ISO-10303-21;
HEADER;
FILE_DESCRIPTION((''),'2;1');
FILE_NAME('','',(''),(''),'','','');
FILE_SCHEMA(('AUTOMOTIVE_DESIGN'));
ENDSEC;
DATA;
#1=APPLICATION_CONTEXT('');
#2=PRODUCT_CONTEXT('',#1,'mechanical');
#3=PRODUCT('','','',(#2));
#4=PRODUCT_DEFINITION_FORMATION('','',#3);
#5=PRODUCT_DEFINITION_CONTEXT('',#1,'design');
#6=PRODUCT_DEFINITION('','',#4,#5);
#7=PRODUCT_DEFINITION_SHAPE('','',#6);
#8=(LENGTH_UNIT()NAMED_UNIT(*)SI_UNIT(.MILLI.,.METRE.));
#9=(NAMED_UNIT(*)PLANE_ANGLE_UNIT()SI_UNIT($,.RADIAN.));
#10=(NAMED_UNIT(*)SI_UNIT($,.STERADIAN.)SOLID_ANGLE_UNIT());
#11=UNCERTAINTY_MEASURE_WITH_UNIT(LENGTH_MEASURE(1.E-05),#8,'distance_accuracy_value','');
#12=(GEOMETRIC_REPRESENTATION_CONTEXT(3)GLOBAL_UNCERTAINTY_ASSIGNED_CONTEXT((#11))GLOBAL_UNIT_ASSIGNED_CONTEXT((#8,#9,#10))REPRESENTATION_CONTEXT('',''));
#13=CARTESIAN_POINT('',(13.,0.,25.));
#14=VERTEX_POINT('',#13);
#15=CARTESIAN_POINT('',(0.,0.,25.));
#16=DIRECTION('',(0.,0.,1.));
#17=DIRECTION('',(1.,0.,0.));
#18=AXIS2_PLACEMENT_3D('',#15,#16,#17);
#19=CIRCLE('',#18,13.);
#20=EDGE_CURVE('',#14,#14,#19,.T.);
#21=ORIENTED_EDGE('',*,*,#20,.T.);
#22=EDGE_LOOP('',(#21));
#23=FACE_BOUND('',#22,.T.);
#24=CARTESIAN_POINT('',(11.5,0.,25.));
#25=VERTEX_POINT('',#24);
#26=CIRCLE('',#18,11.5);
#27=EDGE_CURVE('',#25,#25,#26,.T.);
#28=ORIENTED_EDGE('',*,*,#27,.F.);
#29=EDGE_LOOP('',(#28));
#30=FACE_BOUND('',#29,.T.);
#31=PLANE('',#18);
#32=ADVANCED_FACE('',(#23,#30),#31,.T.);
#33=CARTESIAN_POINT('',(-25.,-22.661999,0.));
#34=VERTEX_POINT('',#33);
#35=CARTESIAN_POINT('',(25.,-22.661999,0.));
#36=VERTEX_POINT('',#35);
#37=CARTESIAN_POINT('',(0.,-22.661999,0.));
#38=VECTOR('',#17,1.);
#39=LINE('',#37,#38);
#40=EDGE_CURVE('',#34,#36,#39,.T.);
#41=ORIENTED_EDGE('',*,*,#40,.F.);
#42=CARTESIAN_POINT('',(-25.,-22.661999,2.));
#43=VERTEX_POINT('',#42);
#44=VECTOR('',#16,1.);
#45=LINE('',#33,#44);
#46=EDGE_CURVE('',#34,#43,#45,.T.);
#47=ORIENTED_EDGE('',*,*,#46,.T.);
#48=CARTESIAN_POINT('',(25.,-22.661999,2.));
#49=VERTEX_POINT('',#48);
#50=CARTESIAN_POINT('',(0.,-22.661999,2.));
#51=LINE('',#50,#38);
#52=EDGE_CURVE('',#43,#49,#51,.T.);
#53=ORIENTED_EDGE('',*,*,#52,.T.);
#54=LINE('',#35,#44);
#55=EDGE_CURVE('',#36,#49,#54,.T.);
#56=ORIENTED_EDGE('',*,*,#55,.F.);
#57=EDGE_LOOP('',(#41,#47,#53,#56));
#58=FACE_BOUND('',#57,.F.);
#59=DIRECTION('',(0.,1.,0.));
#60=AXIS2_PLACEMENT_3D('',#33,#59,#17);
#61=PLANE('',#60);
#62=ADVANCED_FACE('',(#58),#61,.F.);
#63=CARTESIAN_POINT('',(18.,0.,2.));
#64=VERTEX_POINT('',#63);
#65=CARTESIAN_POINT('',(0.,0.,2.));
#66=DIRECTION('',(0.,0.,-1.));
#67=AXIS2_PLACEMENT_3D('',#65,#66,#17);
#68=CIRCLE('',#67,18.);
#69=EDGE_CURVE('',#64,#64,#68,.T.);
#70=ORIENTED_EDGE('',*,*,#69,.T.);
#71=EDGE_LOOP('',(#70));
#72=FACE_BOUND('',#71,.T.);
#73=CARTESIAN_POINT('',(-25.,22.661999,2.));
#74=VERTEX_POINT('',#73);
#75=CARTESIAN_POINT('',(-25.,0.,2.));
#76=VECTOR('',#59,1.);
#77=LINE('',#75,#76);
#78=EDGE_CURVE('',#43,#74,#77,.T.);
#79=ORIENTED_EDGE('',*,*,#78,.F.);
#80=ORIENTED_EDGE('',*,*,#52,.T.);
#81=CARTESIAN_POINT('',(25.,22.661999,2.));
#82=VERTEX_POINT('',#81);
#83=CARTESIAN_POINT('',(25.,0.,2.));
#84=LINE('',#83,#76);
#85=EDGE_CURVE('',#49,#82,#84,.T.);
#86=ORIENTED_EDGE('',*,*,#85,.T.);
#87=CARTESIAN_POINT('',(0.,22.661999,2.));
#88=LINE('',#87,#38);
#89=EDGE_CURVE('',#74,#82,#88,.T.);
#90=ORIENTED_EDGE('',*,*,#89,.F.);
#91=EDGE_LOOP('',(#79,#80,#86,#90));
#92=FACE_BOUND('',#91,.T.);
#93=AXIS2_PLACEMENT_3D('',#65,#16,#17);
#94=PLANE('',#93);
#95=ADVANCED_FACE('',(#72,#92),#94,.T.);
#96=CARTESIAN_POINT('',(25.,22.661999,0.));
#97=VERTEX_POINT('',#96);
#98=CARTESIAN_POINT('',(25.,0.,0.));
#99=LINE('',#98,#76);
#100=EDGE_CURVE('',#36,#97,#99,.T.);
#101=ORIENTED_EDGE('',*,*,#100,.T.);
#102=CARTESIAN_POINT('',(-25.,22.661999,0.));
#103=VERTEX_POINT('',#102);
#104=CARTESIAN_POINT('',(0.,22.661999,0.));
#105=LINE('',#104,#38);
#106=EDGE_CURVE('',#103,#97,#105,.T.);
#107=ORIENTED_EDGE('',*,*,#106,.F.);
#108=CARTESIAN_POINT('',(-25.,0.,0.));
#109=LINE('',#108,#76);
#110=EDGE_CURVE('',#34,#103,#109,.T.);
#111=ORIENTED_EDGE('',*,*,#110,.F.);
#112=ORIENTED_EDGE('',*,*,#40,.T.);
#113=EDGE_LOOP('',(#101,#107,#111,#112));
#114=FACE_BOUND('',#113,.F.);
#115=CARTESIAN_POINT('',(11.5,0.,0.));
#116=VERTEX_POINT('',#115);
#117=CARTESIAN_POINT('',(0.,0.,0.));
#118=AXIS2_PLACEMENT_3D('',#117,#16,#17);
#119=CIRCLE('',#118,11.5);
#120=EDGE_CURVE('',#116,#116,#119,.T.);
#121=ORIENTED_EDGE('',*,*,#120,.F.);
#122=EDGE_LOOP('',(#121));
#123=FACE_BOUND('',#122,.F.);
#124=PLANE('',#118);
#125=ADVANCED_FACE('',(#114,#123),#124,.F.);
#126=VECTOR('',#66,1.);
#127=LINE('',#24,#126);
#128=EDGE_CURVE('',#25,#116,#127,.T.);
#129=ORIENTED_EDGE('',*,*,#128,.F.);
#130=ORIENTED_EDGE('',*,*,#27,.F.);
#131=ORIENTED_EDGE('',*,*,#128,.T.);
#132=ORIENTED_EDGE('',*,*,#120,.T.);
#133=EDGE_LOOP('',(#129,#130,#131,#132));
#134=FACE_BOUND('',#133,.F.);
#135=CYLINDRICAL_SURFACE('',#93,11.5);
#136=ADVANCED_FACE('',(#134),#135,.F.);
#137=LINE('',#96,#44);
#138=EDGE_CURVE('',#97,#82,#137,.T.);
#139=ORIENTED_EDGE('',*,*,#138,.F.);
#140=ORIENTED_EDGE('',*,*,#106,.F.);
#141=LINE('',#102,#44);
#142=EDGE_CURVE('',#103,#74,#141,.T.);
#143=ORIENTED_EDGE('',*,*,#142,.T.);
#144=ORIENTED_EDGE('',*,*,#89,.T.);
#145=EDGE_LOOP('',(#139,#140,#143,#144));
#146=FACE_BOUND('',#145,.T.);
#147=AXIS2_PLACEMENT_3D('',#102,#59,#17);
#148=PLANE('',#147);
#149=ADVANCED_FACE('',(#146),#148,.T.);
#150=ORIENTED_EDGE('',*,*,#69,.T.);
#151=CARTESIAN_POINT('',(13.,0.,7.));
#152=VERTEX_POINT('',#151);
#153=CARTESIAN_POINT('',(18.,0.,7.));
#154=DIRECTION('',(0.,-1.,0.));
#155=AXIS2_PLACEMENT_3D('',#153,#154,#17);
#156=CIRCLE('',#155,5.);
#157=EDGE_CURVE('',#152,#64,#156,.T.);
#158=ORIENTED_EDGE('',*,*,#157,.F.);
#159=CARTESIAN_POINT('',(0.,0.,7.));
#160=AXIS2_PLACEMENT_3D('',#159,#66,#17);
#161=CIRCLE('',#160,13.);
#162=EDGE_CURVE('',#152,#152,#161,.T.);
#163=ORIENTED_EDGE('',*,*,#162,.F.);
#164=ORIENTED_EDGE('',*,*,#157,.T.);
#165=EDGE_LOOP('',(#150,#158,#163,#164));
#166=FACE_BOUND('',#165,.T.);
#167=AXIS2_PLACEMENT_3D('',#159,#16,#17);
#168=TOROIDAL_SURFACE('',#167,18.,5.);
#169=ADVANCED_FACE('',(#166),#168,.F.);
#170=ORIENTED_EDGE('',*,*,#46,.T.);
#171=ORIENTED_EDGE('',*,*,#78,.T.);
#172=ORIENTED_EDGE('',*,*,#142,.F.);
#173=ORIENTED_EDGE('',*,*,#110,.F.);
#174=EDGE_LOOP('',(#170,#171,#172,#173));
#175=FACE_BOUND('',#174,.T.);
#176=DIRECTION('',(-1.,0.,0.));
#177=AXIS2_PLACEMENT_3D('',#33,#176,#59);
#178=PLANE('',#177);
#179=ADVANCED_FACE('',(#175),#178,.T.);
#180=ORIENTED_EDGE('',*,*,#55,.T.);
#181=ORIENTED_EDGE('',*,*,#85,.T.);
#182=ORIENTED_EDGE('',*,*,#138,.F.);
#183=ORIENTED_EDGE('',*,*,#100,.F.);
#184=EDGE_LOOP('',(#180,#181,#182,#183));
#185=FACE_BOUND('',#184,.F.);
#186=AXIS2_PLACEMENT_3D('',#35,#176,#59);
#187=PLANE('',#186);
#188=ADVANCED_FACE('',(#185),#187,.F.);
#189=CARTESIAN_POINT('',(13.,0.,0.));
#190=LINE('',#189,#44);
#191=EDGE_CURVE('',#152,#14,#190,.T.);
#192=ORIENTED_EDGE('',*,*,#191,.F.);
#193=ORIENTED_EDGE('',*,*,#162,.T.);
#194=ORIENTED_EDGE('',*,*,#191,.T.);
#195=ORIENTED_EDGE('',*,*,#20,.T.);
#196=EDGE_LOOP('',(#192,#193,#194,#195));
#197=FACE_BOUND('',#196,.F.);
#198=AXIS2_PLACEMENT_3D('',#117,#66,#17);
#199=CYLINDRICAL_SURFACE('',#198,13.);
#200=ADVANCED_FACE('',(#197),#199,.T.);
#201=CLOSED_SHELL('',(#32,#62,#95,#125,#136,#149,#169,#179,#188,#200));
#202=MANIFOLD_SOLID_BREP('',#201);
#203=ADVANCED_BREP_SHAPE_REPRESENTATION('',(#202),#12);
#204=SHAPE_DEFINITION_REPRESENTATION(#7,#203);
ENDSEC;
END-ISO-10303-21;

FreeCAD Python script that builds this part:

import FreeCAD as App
import Part
import Sketcher

V = App.Vector
Q = App.Units.Quantity


def edges_at(feature, points):
    """Names of the edges that pass closest to the given points."""
    edges = feature.Shape.Edges
    near = lambda p: min(range(len(edges)), key=lambda i: edges[i].distToShape(Part.Vertex(*p))[0])
    return sorted({f"Edge{near(p) + 1}" for p in points})

doc = App.newDocument("Part")
params = doc.addObject("Spreadsheet::Sheet", "Params")
for row, (alias, value) in enumerate([
    ("sketch1_width", "50 mm"),
    ("pad1_length", "2 mm"),
    ("sketch2_diameter", "26 mm"),
    ("sketch2_diameter2", "23 mm"),
    ("pad2_length", "25 mm"),
    ("sketch3_diameter", "23 mm"),
    ("pocket1_length", "25 mm"),
    ("fillet_radius", "5 mm"),
], start=1):
    params.set(f"A{row}", alias)
    params.set(f"B{row}", "=" + value)
    params.setAlias(f"B{row}", alias)

body = doc.addObject("PartDesign::Body", "Body")

sketch1 = body.newObject("Sketcher::SketchObject", "Sketch")
sketch1.AttachmentSupport = (doc.getObject("XY_Plane"), [""])
sketch1.MapMode = "FlatFace"
sketch1.addGeometry(Part.LineSegment(V(-25, 22.661999, 0), V(-25, -22.661999, 0)), False)
sketch1.addGeometry(Part.LineSegment(V(-25, -22.661999, 0), V(25, -22.661999, 0)), False)
sketch1.addGeometry(Part.LineSegment(V(25, -22.661999, 0), V(25, 22.661999, 0)), False)
sketch1.addGeometry(Part.LineSegment(V(25, 22.661999, 0), V(-25, 22.661999, 0)), False)
sketch1.addConstraint(Sketcher.Constraint("Coincident", 0, 2, 1, 1))
sketch1.addConstraint(Sketcher.Constraint("Coincident", 1, 2, 2, 1))
sketch1.addConstraint(Sketcher.Constraint("Coincident", 2, 2, 3, 1))
sketch1.addConstraint(Sketcher.Constraint("Coincident", 3, 2, 0, 1))
sketch1.addConstraint(Sketcher.Constraint("Vertical", 0))
sketch1.addConstraint(Sketcher.Constraint("Horizontal", 1))
sketch1.addConstraint(Sketcher.Constraint("Vertical", 2))
sketch1.addConstraint(Sketcher.Constraint("Horizontal", 3))
sketch1.addConstraint(Sketcher.Constraint("Symmetric", 0, 2, 2, 2, -1, 1))
sketch1.addConstraint(Sketcher.Constraint("DistanceX", 1, 1, 1, 2, Q("50 mm")))
sketch1.addConstraint(Sketcher.Constraint("DistanceY", 0, 2, 0, 1, Q("45.323998 mm")))
sketch1.setExpression("Constraints[9]", "Params.sketch1_width")
pad1 = body.newObject("PartDesign::Pad", "Pad")
pad1.Profile = sketch1
pad1.setExpression("Length", "Params.pad1_length")

sketch2 = body.newObject("Sketcher::SketchObject", "Sketch001")
sketch2.AttachmentSupport = (doc.getObject("XY_Plane"), [""])
sketch2.MapMode = "FlatFace"
sketch2.addGeometry(Part.Circle(V(0, 0, 0), V(0, 0, 1), 13), False)
sketch2.addGeometry(Part.Circle(V(0, 0, 0), V(0, 0, 1), 11.5), False)
sketch2.addConstraint(Sketcher.Constraint("Coincident", 0, 3, -1, 1))
sketch2.addConstraint(Sketcher.Constraint("Coincident", 1, 3, -1, 1))
sketch2.addConstraint(Sketcher.Constraint("Diameter", 0, Q("26 mm")))
sketch2.addConstraint(Sketcher.Constraint("Diameter", 1, Q("23 mm")))
sketch2.setExpression("Constraints[2]", "Params.sketch2_diameter")
sketch2.setExpression("Constraints[3]", "Params.sketch2_diameter2")
pad2 = body.newObject("PartDesign::Pad", "Pad001")
pad2.Profile = sketch2
pad2.setExpression("Length", "Params.pad2_length")

sketch3 = body.newObject("Sketcher::SketchObject", "Sketch002")
sketch3.AttachmentSupport = (doc.getObject("XY_Plane"), [""])
sketch3.MapMode = "FlatFace"
sketch3.AttachmentOffset = App.Placement(V(0, 0, 2), App.Rotation())
sketch3.addGeometry(Part.Circle(V(0, 0, 0), V(0, 0, 1), 11.5), False)
sketch3.addConstraint(Sketcher.Constraint("Coincident", 0, 3, -1, 1))
sketch3.addConstraint(Sketcher.Constraint("Diameter", 0, Q("23 mm")))
sketch3.setExpression("Constraints[1]", "Params.sketch3_diameter")
pocket1 = body.newObject("PartDesign::Pocket", "Pocket")
pocket1.Profile = sketch3
pocket1.setExpression("Length", "Params.pocket1_length")
doc.recompute()

fillet = body.newObject("PartDesign::Fillet", "Fillet")
fillet.Base = (pocket1, edges_at(pocket1, [(-13, 0, 2)]))
fillet.setExpression("Radius", "Params.fillet_radius")

doc.recompute()
